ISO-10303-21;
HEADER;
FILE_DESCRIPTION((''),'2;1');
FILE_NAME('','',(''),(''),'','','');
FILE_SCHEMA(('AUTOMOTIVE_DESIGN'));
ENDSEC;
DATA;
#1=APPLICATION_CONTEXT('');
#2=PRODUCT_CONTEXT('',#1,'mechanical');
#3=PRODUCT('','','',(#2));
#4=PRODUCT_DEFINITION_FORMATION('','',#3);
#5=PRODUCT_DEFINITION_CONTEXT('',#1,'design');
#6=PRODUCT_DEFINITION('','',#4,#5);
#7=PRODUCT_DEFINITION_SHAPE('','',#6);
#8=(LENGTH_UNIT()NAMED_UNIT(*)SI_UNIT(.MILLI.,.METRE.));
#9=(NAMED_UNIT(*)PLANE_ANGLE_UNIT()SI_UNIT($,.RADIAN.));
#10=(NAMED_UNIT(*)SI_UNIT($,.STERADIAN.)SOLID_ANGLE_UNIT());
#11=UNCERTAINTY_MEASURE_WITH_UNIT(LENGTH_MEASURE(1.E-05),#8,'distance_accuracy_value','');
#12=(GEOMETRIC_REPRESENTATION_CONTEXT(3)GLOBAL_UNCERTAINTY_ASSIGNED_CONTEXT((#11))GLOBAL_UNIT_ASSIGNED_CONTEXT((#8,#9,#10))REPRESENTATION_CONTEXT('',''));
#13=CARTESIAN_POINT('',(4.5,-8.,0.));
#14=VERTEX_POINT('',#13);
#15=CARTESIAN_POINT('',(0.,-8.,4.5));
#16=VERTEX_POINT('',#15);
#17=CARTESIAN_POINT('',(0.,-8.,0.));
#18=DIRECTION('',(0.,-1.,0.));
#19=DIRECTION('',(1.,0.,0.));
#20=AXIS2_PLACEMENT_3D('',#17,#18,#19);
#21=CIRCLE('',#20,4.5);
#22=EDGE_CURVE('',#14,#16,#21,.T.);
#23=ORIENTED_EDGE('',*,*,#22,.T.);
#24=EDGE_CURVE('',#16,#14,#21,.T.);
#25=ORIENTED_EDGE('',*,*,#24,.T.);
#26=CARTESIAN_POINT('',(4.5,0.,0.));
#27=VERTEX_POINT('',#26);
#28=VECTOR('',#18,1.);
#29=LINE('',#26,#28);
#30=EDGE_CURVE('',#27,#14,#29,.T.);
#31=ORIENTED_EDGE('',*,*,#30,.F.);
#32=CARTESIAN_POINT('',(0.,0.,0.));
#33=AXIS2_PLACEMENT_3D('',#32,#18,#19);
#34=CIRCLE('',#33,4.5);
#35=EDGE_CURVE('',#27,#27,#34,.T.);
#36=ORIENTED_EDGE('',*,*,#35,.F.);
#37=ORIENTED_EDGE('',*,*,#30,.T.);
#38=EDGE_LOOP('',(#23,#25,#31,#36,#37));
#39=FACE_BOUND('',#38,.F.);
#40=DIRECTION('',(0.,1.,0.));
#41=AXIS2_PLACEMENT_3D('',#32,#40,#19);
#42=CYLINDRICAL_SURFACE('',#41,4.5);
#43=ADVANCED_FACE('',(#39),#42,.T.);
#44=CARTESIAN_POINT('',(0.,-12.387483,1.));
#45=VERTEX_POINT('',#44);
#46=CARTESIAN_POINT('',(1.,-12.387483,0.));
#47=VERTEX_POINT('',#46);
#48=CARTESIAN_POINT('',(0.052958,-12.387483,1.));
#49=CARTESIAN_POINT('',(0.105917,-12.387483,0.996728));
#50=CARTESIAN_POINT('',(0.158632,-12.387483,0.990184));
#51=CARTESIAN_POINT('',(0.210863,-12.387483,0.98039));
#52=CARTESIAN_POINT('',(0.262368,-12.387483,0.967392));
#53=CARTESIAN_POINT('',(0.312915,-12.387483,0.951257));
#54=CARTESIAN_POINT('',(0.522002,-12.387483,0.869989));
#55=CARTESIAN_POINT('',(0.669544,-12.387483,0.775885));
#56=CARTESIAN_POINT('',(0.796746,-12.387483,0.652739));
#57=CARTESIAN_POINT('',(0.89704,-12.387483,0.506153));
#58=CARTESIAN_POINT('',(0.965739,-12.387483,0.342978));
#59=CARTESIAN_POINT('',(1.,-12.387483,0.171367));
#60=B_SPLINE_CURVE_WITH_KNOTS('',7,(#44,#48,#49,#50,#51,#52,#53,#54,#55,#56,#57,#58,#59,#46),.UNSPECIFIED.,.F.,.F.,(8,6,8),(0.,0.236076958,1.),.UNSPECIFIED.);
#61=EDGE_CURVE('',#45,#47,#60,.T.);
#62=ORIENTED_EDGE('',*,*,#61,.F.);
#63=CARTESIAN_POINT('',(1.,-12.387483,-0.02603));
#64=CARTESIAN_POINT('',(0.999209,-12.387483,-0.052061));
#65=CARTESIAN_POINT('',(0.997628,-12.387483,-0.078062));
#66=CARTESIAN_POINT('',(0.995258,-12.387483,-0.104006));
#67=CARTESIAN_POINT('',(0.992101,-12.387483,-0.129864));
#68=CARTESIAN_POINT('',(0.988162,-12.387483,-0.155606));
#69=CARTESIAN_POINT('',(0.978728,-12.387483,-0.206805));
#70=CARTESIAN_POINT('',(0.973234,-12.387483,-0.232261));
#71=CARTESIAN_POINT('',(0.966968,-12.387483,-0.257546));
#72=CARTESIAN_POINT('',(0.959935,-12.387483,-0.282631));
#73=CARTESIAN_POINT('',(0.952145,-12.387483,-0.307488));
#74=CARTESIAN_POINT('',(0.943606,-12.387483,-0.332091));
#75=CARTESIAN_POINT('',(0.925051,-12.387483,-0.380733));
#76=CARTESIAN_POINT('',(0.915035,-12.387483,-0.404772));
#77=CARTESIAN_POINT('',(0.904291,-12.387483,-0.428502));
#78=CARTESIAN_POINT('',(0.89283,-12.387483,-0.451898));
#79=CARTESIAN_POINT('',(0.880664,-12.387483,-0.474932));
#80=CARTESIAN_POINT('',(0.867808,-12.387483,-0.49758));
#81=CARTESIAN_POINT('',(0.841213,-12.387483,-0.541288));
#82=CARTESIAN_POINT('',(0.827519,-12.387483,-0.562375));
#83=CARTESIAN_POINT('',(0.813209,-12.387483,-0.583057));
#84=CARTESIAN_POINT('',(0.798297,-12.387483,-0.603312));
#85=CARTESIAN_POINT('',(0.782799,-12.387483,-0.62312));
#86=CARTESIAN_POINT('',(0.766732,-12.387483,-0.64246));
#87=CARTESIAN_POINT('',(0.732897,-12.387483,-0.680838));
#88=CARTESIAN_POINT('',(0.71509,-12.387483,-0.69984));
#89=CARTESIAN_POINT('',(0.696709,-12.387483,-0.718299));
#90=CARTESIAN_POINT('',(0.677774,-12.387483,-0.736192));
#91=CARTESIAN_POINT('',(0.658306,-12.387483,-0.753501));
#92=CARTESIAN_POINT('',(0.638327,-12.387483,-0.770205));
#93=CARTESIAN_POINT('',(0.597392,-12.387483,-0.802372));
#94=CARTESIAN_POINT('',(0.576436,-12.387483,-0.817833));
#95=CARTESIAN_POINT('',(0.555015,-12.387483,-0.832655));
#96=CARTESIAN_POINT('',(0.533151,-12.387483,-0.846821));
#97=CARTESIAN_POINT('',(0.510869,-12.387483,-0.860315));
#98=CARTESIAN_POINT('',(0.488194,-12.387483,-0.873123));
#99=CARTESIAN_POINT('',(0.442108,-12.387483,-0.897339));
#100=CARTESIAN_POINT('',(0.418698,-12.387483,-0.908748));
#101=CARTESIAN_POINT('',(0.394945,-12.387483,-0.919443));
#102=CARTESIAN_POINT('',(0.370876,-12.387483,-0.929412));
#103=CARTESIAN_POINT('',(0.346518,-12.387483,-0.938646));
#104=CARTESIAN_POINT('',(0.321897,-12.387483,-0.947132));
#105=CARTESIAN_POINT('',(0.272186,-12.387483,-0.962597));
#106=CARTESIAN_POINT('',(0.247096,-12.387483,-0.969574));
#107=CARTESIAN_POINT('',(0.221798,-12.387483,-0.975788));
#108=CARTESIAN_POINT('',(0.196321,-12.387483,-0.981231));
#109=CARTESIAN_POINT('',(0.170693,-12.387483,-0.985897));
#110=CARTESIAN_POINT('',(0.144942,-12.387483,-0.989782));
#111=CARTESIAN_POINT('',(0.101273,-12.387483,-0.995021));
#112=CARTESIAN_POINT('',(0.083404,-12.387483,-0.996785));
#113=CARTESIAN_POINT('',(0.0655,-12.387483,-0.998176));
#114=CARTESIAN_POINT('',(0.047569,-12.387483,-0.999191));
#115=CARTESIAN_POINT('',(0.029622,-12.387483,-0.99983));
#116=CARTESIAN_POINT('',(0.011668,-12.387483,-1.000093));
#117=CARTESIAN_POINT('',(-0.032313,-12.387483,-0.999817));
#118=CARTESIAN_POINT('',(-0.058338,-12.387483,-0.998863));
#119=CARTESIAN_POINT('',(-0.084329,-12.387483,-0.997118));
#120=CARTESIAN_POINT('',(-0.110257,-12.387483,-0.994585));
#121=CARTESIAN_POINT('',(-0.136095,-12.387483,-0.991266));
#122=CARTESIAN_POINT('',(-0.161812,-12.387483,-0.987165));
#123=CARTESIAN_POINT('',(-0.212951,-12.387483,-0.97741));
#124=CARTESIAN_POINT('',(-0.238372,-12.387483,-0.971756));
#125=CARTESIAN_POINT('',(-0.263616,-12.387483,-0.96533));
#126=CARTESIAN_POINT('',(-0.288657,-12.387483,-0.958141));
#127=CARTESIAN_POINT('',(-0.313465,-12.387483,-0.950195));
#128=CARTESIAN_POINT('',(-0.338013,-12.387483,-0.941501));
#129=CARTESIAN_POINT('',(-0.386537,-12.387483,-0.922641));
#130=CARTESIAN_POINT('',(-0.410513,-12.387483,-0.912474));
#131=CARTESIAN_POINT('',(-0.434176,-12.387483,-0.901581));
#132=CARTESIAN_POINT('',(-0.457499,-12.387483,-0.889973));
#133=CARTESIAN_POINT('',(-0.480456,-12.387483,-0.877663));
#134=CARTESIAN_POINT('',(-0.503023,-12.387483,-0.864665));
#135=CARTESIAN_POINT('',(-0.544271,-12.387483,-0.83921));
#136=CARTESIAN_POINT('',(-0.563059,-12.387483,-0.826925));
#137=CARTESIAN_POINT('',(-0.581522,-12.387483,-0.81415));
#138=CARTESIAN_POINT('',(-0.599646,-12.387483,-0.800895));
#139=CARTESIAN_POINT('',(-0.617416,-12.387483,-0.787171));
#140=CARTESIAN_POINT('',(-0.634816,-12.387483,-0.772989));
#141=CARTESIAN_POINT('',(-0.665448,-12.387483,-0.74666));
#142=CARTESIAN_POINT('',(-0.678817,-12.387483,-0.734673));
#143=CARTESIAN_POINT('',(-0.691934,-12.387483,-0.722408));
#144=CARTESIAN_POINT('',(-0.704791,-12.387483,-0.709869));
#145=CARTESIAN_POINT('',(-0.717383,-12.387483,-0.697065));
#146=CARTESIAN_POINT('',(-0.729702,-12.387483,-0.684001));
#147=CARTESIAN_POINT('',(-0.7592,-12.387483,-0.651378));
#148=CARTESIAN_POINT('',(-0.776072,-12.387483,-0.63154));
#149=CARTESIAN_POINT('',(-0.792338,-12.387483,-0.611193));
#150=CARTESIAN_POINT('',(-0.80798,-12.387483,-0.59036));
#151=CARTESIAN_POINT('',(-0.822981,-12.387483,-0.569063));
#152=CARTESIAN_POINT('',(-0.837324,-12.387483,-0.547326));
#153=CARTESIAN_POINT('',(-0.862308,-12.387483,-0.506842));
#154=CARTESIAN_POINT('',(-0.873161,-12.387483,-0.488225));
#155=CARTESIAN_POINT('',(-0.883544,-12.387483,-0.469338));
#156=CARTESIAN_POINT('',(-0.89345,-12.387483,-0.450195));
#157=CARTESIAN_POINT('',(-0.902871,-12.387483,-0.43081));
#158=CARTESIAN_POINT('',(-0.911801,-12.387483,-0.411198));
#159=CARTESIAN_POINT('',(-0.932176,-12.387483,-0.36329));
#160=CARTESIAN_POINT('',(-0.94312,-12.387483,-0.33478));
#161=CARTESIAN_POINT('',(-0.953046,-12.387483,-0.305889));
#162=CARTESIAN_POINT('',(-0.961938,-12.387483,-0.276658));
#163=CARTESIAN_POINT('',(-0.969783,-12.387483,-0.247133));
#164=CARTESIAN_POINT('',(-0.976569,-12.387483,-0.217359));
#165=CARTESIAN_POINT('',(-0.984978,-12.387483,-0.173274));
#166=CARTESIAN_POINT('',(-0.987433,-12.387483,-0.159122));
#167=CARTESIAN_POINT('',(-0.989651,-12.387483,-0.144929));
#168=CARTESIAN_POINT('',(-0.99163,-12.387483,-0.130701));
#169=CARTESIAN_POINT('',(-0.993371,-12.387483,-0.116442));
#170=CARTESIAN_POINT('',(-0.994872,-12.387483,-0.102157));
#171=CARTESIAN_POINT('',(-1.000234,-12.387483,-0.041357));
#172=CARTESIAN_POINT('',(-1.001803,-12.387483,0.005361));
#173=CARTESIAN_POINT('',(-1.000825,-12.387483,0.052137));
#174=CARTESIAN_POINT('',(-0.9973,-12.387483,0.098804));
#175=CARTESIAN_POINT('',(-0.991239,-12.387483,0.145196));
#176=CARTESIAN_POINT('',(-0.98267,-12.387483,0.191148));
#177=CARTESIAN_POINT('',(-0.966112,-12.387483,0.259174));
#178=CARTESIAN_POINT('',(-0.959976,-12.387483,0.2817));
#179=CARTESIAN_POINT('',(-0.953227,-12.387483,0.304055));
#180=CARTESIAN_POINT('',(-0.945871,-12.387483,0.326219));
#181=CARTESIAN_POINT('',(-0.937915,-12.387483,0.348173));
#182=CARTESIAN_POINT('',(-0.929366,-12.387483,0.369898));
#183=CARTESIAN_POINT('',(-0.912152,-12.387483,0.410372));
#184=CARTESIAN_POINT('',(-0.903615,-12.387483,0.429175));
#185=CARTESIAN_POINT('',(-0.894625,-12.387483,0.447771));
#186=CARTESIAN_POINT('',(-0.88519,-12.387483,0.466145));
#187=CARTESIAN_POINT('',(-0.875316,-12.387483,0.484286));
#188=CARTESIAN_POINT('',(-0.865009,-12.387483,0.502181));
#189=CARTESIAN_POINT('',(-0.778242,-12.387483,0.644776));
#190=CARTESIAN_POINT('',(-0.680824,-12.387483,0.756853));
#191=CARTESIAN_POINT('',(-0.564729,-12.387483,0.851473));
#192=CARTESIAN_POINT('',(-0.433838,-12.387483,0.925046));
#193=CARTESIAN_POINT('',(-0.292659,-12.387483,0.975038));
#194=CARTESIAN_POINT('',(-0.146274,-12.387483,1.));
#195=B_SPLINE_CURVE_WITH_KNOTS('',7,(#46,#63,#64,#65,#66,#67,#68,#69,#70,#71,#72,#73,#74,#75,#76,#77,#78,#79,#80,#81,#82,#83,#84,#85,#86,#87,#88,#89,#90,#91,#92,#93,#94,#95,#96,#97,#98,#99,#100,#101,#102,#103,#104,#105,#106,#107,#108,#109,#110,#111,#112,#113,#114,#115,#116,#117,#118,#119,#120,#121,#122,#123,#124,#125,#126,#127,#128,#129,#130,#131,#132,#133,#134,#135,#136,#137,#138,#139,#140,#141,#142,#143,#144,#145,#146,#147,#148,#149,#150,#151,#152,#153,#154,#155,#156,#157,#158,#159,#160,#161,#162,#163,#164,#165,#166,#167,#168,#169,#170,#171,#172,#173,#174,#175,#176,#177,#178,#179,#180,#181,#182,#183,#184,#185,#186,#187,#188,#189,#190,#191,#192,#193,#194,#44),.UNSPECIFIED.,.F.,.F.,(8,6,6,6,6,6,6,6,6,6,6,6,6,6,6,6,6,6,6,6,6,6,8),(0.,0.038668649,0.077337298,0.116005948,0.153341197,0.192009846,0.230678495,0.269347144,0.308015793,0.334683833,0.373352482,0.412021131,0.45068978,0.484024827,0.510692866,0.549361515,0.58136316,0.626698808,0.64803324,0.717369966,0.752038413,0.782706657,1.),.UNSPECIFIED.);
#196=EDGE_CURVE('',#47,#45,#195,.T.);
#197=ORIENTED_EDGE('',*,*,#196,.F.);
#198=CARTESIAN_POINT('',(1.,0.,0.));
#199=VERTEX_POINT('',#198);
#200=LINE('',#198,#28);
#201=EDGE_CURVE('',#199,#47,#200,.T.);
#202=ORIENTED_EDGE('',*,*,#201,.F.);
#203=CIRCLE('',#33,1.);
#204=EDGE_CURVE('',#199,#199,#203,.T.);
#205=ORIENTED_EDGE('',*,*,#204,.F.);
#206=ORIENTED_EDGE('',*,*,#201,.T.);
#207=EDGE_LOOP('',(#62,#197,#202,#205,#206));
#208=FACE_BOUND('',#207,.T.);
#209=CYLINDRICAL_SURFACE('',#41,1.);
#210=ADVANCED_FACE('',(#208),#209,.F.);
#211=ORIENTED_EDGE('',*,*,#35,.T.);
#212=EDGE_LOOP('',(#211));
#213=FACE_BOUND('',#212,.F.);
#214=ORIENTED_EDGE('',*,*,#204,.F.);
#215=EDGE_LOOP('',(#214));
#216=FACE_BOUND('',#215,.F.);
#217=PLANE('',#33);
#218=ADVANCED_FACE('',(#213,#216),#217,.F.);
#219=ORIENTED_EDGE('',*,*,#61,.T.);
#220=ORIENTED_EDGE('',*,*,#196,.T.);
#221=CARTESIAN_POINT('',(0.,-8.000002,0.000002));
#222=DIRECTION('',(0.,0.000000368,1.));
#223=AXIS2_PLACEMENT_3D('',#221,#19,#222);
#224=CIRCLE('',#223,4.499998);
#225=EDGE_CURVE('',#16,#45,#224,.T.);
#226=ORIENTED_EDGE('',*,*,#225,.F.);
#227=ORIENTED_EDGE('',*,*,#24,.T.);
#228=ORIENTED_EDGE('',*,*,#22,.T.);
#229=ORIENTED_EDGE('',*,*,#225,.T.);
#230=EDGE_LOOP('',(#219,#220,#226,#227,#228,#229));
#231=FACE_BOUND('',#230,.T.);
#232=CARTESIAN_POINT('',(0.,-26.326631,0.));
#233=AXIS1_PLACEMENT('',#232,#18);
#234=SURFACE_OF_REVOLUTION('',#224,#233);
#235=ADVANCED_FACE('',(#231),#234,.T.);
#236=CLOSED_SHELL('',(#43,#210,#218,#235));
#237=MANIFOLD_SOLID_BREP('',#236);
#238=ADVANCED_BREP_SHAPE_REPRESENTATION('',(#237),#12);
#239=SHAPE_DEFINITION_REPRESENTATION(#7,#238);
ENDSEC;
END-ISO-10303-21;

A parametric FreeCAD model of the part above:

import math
import FreeCAD as App
import Part
import Sketcher

V = App.Vector

doc = App.newDocument("Part")
body = doc.addObject("PartDesign::Body", "Body")

# Sketch on XZ plane
sketch1 = body.newObject("Sketcher::SketchObject", "Sketch")
sketch1.AttachmentSupport = (doc.getObject("XZ_Plane"), [""])
sketch1.MapMode = "FlatFace"
sketch1.addGeometry(Part.Circle(V(0, 0, 0), V(0, 0, 1), 4.5), False)
sketch1.addConstraint([
    Sketcher.Constraint("Coincident", 0, 3, -1, 1),
    Sketcher.Constraint("Diameter", 0, 9.0),
])
pad1 = body.newObject("PartDesign::Pad", "Pad")
pad1.Profile = sketch1
pad1.Length = 8

# Sketch on YZ plane
sketch2 = body.newObject("Sketcher::SketchObject", "Sketch001")
sketch2.AttachmentSupport = (doc.getObject("YZ_Plane"), [""])
sketch2.MapMode = "FlatFace"
sketch2.addGeometry([
    Part.LineSegment(V(-8, 0, 0), V(-8, 4.5, 0)),
    Part.ArcOfCircle(Part.Circle(V(-8.000002, 0.000002, 0), V(0, 0, 1), 4.499998), math.radians(89.999979), math.radians(180.000021)),
    Part.LineSegment(V(-12.5, 0, 0), V(-8, 0, 0)),
], False)
sketch2.addConstraint([
    Sketcher.Constraint("Coincident", 0, 2, 1, 1),
    Sketcher.Constraint("Coincident", 1, 2, 2, 1),
    Sketcher.Constraint("Coincident", 2, 2, 0, 1),
    Sketcher.Constraint("Vertical", 0),
    Sketcher.Constraint("Horizontal", 2),
    Sketcher.Constraint("Coincident", 2, 2, 1, 3),
    Sketcher.Constraint("PointOnObject", 1, 3, -1),
    Sketcher.Constraint("Radius", 1, 4.499998),
    Sketcher.Constraint("DistanceX", 1, 3, -1, 1, 8.000002),
])
revolution = body.newObject("PartDesign::Revolution", "Revolution")
revolution.Profile = sketch2
revolution.ReferenceAxis = (sketch2, ["H_Axis"])
revolution.Angle = 360

# Sketch on XZ plane
sketch3 = body.newObject("Sketcher::SketchObject", "Sketch002")
sketch3.AttachmentSupport = (doc.getObject("XZ_Plane"), [""])
sketch3.MapMode = "FlatFace"
sketch3.addGeometry(Part.Circle(V(0, 0, 0), V(0, 0, 1), 1), False)
sketch3.addConstraint([
    Sketcher.Constraint("Coincident", 0, 3, -1, 1),
    Sketcher.Constraint("Diameter", 0, 2.0),
])
pocket1 = body.newObject("PartDesign::Pocket", "Pocket")
pocket1.Profile = sketch3
pocket1.Type = "ThroughAll"
pocket1.Reversed = True

doc.recompute()
